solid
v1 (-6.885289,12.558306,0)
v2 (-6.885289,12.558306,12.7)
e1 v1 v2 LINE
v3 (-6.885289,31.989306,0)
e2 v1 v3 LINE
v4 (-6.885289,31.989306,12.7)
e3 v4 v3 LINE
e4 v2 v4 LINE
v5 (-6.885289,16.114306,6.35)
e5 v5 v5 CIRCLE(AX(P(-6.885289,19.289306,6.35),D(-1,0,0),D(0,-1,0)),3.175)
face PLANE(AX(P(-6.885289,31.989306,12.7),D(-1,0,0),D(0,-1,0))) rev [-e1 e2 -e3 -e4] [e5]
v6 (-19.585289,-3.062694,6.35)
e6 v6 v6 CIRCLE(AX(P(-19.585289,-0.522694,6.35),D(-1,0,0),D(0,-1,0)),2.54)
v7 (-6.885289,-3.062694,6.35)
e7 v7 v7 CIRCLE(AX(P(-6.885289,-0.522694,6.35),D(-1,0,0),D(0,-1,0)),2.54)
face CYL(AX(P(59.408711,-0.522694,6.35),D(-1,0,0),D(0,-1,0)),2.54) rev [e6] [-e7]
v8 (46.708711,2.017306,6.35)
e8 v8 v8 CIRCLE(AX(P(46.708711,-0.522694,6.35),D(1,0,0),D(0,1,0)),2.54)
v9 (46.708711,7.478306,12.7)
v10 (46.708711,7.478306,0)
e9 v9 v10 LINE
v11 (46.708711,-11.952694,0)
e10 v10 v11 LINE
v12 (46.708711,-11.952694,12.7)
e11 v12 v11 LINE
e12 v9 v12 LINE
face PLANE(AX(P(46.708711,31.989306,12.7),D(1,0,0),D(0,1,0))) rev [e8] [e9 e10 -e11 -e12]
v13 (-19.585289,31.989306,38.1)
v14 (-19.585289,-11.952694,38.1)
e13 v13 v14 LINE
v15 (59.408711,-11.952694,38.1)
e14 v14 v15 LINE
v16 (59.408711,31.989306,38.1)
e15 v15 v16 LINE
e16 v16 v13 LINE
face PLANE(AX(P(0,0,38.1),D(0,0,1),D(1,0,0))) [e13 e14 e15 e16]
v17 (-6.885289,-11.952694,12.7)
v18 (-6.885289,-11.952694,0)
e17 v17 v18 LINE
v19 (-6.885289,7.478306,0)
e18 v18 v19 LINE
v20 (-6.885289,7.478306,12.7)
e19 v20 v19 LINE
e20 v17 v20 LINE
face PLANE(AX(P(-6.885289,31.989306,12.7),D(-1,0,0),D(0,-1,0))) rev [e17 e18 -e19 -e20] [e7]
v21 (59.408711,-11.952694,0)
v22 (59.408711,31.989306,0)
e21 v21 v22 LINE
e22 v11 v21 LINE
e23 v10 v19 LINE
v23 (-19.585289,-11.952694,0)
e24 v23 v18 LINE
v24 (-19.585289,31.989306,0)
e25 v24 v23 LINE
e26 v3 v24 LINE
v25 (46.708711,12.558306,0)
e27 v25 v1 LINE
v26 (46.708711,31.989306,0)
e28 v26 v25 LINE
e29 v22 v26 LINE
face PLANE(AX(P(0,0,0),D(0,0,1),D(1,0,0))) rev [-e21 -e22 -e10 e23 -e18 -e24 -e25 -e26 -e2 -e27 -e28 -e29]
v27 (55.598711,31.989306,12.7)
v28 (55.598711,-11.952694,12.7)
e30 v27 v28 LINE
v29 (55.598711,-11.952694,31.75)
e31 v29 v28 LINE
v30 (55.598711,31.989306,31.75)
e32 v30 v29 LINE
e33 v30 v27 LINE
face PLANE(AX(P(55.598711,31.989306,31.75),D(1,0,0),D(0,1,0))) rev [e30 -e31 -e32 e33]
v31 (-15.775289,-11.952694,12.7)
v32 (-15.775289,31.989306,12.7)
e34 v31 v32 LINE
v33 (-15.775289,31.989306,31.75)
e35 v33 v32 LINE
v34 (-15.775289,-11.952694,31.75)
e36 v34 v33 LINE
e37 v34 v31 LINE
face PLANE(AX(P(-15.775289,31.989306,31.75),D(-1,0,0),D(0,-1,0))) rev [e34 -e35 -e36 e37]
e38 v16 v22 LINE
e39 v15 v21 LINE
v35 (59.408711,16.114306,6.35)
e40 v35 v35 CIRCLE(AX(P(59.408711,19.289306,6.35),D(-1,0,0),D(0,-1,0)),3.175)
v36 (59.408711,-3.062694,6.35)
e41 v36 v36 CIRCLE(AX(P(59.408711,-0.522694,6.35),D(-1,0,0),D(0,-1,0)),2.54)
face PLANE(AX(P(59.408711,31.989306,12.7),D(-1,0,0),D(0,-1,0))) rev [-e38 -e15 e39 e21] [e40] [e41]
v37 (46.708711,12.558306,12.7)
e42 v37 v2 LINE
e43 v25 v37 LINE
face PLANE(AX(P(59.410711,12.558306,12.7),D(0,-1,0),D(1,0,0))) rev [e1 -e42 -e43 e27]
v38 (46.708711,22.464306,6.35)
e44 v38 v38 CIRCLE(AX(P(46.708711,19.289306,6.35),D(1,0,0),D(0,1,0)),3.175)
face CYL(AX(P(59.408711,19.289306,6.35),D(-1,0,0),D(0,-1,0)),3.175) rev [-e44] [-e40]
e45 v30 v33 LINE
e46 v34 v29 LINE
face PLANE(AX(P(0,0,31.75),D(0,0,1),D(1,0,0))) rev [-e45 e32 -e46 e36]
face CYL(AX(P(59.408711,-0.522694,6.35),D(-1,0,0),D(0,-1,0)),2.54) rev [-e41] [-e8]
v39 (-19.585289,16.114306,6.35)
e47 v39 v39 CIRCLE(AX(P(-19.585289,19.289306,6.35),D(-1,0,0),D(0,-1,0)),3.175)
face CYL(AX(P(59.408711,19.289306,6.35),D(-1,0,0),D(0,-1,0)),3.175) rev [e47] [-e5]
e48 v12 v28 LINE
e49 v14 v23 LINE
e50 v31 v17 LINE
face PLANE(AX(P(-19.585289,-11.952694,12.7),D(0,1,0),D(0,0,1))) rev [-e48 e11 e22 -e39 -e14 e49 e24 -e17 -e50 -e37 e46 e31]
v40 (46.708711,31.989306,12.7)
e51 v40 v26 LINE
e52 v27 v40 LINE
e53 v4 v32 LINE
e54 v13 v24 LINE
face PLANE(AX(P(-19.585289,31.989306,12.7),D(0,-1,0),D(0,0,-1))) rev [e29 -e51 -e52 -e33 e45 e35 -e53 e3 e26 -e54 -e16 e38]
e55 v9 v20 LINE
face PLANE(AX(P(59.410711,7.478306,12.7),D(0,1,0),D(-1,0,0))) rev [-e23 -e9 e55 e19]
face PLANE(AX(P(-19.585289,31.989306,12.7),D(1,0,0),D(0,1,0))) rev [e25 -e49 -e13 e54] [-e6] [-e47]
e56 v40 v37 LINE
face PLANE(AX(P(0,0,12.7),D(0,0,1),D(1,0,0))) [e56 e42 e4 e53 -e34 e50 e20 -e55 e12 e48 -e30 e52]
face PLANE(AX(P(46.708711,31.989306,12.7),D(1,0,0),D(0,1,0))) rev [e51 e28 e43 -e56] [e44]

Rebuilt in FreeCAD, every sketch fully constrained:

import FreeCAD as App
import Part
import Sketcher

V = App.Vector
Q = App.Units.Quantity

doc = App.newDocument("Part")
body = doc.addObject("PartDesign::Body", "Body")

# Sketch on XY plane
sketch1 = body.newObject("Sketcher::SketchObject", "Sketch")
sketch1.AttachmentSupport = (doc.getObject("XY_Plane"), [""])
sketch1.MapMode = "FlatFace"
sketch1.addGeometry([
    Part.LineSegment(V(-20, 32, 0), V(-20, -12, 0)),
    Part.LineSegment(V(-20, -12, 0), V(-7, -12, 0)),
    Part.LineSegment(V(-7, -12, 0), V(-7, 32, 0)),
    Part.LineSegment(V(-7, 32, 0), V(-20, 32, 0)),
], False)
sketch1.addConstraint([
    Sketcher.Constraint("Coincident", 0, 2, 1, 1),
    Sketcher.Constraint("Coincident", 1, 2, 2, 1),
    Sketcher.Constraint("Coincident", 2, 2, 3, 1),
    Sketcher.Constraint("Coincident", 3, 2, 0, 1),
    Sketcher.Constraint("Vertical", 0),
    Sketcher.Constraint("Horizontal", 1),
    Sketcher.Constraint("Vertical", 2),
    Sketcher.Constraint("Horizontal", 3),
    Sketcher.Constraint("DistanceX", 1, 1, 1, 2, Q("0.5 in")),
    Sketcher.Constraint("DistanceY", 0, 2, 0, 1, Q("1.73 in")),
    Sketcher.Constraint("DistanceX", 0, 2, -1, 1, Q("19.585289 mm")),
    Sketcher.Constraint("DistanceY", 0, 2, -1, 1, Q("11.952694 mm")),
])
pad1 = body.newObject("PartDesign::Pad", "Pad")
pad1.Profile = sketch1
pad1.Length = Q("0.5 in")
body2 = doc.addObject("PartDesign::Body", "Body001")

# Sketch on XY plane
sketch2 = body2.newObject("Sketcher::SketchObject", "Sketch001")
sketch2.AttachmentSupport = (doc.getObject("XY_Plane001"), [""])
sketch2.MapMode = "FlatFace"
sketch2.addGeometry([
    Part.LineSegment(V(47, 32, 0), V(47, -12, 0)),
    Part.LineSegment(V(47, -12, 0), V(59, -12, 0)),
    Part.LineSegment(V(59, -12, 0), V(59, 32, 0)),
    Part.LineSegment(V(59, 32, 0), V(47, 32, 0)),
], False)
sketch2.addConstraint([
    Sketcher.Constraint("Coincident", 0, 2, 1, 1),
    Sketcher.Constraint("Coincident", 1, 2, 2, 1),
    Sketcher.Constraint("Coincident", 2, 2, 3, 1),
    Sketcher.Constraint("Coincident", 3, 2, 0, 1),
    Sketcher.Constraint("Vertical", 0),
    Sketcher.Constraint("Horizontal", 1),
    Sketcher.Constraint("Vertical", 2),
    Sketcher.Constraint("Horizontal", 3),
    Sketcher.Constraint("DistanceX", 1, 1, 1, 2, Q("0.5 in")),
    Sketcher.Constraint("DistanceY", 0, 2, 0, 1, Q("1.73 in")),
    Sketcher.Constraint("DistanceX", -1, 1, 0, 2, Q("46.708711 mm")),
    Sketcher.Constraint("DistanceY", 0, 2, -1, 1, Q("11.952694 mm")),
])
pad2 = body2.newObject("PartDesign::Pad", "Pad001")
pad2.Profile = sketch2
pad2.Length = Q("0.5 in")
body3 = doc.addObject("PartDesign::Body", "Body002")
body3.AllowCompound = True

# Sketch on YZ plane
sketch3 = body3.newObject("Sketcher::SketchObject", "Sketch002")
sketch3.AttachmentSupport = (doc.getObject("YZ_Plane002"), [""])
sketch3.MapMode = "FlatFace"
sketch3.AttachmentOffset = App.Placement(V(0, 0, -19.585289), App.Rotation())
sketch3.addGeometry([
    Part.Circle(V(19.3, 6.3, 0), V(0, 0, 1), 3.2),
    Part.Circle(V(-0.5, 6.3, 0), V(0, 0, 1), 2.5),
], False)
sketch3.addConstraint([
    Sketcher.Constraint("Horizontal", 0, 3, 1, 3),
    Sketcher.Constraint("Diameter", 1, Q("0.2 in")),
    Sketcher.Constraint("Diameter", 0, Q("0.25 in")),
    Sketcher.Constraint("DistanceY", -1, 1, 0, 3, Q("0.25 in")),
    Sketcher.Constraint("DistanceX", 1, 3, 0, 3, Q("0.78 in")),
    Sketcher.Constraint("DistanceX", -1, 1, 0, 3, Q("19.289306 mm")),
])
pad3 = body3.newObject("PartDesign::Pad", "Pad002")
pad3.Profile = sketch3
pad3.Length = 87.166454
doc.recompute()

body4 = doc.addObject("PartDesign::Body", "Body003")
body4.BaseFeature = body3
boolean = body.newObject("PartDesign::Boolean", "Boolean")
boolean.Type = "Cut"
boolean.addObjects([body4])
doc.recompute()
body2.AllowCompound = True
doc.recompute()

boolean2 = body2.newObject("PartDesign::Boolean", "Boolean001")
boolean2.Type = "Cut"
boolean2.addObjects([body3])
doc.recompute()

boolean3 = body2.newObject("PartDesign::Boolean", "Boolean002")
boolean3.Type = "Fuse"
boolean3.addObjects([body])

# Sketch on YZ plane
sketch4 = body2.newObject("Sketcher::SketchObject", "Sketch003")
sketch4.AttachmentSupport = (doc.getObject("YZ_Plane001"), [""])
sketch4.MapMode = "FlatFace"
sketch4.AttachmentOffset = App.Placement(V(0, 0, -6.885289), App.Rotation())
sketch4.addGeometry([
    Part.LineSegment(V(13, 13, 0), V(7, 13, 0)),
    Part.LineSegment(V(7, 13, 0), V(7, 0, 0)),
    Part.LineSegment(V(7, 0, 0), V(13, 0, 0)),
    Part.LineSegment(V(13, 0, 0), V(13, 13, 0)),
], False)
sketch4.addConstraint([
    Sketcher.Constraint("Coincident", 0, 2, 1, 1),
    Sketcher.Constraint("Coincident", 1, 2, 2, 1),
    Sketcher.Constraint("Coincident", 2, 2, 3, 1),
    Sketcher.Constraint("Coincident", 3, 2, 0, 1),
    Sketcher.Constraint("Horizontal", 0),
    Sketcher.Constraint("Vertical", 1),
    Sketcher.Constraint("Horizontal", 2),
    Sketcher.Constraint("Vertical", 3),
    Sketcher.Constraint("PointOnObject", 1, 2, -1),
    Sketcher.Constraint("DistanceX", 0, 2, 0, 1, Q("0.2 in")),
    Sketcher.Constraint("DistanceY", 1, 2, 1, 1, Q("0.5 in")),
    Sketcher.Constraint("DistanceX", -1, 1, 0, 2, Q("7.478306 mm")),
])
pad4 = body2.newObject("PartDesign::Pad", "Pad003")
pad4.Profile = sketch4
pad4.Type = "UpToFirst"

# Sketch on XY plane
sketch5 = body2.newObject("Sketcher::SketchObject", "Sketch004")
sketch5.AttachmentSupport = (doc.getObject("XY_Plane001"), [""])
sketch5.MapMode = "FlatFace"
sketch5.AttachmentOffset = App.Placement(V(0, 0, 0.5 * 25.4), App.Rotation())
sketch5.addGeometry([
    Part.LineSegment(V(-19.6, 32, 0), V(-19.6, -12, 0)),  # 0
    Part.LineSegment(V(-19.6, -12, 0), V(-15.8, -12, 0)),  # 1
    Part.LineSegment(V(-15.8, -12, 0), V(-15.8, 32, 0)),  # 2
    Part.LineSegment(V(-15.8, 32, 0), V(-19.6, 32, 0)),  # 3
    Part.LineSegment(V(55.6, 32, 0), V(55.6, -12, 0)),  # 4
    Part.LineSegment(V(55.6, -12, 0), V(59.4, -12, 0)),  # 5
    Part.LineSegment(V(59.4, -12, 0), V(59.4, 32, 0)),  # 6
    Part.LineSegment(V(59.4, 32, 0), V(55.6, 32, 0)),  # 7
], False)
sketch5.addConstraint([
    Sketcher.Constraint("Coincident", 0, 2, 1, 1),
    Sketcher.Constraint("Coincident", 1, 2, 2, 1),
    Sketcher.Constraint("Coincident", 2, 2, 3, 1),
    Sketcher.Constraint("Coincident", 3, 2, 0, 1),
    Sketcher.Constraint("Coincident", 4, 2, 5, 1),
    Sketcher.Constraint("Coincident", 5, 2, 6, 1),
    Sketcher.Constraint("Coincident", 6, 2, 7, 1),
    Sketcher.Constraint("Coincident", 7, 2, 4, 1),
    Sketcher.Constraint("Vertical", 0),
    Sketcher.Constraint("Horizontal", 1),
    Sketcher.Constraint("Vertical", 2),
    Sketcher.Constraint("Horizontal", 3),
    Sketcher.Constraint("Vertical", 4),
    Sketcher.Constraint("Horizontal", 5),
    Sketcher.Constraint("Vertical", 6),
    Sketcher.Constraint("Horizontal", 7),
    Sketcher.Constraint("Horizontal", 1, 2, 4, 2),
    Sketcher.Constraint("Horizontal", 3, 2, 6, 2),
    Sketcher.Constraint("Equal", 3, 5),
    Sketcher.Constraint("DistanceX", 1, 1, 1, 2, Q("0.15 in")),
    Sketcher.Constraint("DistanceY", 0, 2, 0, 1, Q("1.73 in")),
    Sketcher.Constraint("DistanceX", 1, 2, 4, 2, Q("2.81 in")),
    Sketcher.Constraint("DistanceX", 0, 2, -1, 1, Q("19.585289 mm")),
    Sketcher.Constraint("DistanceY", 0, 2, -1, 1, Q("11.952694 mm")),
])
pad5 = body2.newObject("PartDesign::Pad", "Pad004")
pad5.Profile = sketch5
pad5.Length = Q("0.75 in")

# Sketch on XY plane
sketch6 = body2.newObject("Sketcher::SketchObject", "Sketch005")
sketch6.AttachmentSupport = (doc.getObject("XY_Plane001"), [""])
sketch6.MapMode = "FlatFace"
sketch6.AttachmentOffset = App.Placement(V(0, 0, 1.25 * 25.4), App.Rotation())
sketch6.addGeometry([
    Part.LineSegment(V(-20, 32, 0), V(-20, -12, 0)),
    Part.LineSegment(V(-20, -12, 0), V(59, -12, 0)),
    Part.LineSegment(V(59, -12, 0), V(59, 32, 0)),
    Part.LineSegment(V(59, 32, 0), V(-20, 32, 0)),
], False)
sketch6.addConstraint([
    Sketcher.Constraint("Coincident", 0, 2, 1, 1),
    Sketcher.Constraint("Coincident", 1, 2, 2, 1),
    Sketcher.Constraint("Coincident", 2, 2, 3, 1),
    Sketcher.Constraint("Coincident", 3, 2, 0, 1),
    Sketcher.Constraint("Vertical", 0),
    Sketcher.Constraint("Horizontal", 1),
    Sketcher.Constraint("Vertical", 2),
    Sketcher.Constraint("Horizontal", 3),
    Sketcher.Constraint("DistanceX", 1, 1, 1, 2, Q("3.11 in")),
    Sketcher.Constraint("DistanceY", 0, 2, 0, 1, Q("1.73 in")),
    Sketcher.Constraint("DistanceX", 0, 2, -1, 1, Q("19.585289 mm")),
    Sketcher.Constraint("DistanceY", 0, 2, -1, 1, Q("11.952694 mm")),
])
pad6 = body2.newObject("PartDesign::Pad", "Pad005")
pad6.Profile = sketch6
pad6.Length = Q("0.25 in")

doc.recompute()
